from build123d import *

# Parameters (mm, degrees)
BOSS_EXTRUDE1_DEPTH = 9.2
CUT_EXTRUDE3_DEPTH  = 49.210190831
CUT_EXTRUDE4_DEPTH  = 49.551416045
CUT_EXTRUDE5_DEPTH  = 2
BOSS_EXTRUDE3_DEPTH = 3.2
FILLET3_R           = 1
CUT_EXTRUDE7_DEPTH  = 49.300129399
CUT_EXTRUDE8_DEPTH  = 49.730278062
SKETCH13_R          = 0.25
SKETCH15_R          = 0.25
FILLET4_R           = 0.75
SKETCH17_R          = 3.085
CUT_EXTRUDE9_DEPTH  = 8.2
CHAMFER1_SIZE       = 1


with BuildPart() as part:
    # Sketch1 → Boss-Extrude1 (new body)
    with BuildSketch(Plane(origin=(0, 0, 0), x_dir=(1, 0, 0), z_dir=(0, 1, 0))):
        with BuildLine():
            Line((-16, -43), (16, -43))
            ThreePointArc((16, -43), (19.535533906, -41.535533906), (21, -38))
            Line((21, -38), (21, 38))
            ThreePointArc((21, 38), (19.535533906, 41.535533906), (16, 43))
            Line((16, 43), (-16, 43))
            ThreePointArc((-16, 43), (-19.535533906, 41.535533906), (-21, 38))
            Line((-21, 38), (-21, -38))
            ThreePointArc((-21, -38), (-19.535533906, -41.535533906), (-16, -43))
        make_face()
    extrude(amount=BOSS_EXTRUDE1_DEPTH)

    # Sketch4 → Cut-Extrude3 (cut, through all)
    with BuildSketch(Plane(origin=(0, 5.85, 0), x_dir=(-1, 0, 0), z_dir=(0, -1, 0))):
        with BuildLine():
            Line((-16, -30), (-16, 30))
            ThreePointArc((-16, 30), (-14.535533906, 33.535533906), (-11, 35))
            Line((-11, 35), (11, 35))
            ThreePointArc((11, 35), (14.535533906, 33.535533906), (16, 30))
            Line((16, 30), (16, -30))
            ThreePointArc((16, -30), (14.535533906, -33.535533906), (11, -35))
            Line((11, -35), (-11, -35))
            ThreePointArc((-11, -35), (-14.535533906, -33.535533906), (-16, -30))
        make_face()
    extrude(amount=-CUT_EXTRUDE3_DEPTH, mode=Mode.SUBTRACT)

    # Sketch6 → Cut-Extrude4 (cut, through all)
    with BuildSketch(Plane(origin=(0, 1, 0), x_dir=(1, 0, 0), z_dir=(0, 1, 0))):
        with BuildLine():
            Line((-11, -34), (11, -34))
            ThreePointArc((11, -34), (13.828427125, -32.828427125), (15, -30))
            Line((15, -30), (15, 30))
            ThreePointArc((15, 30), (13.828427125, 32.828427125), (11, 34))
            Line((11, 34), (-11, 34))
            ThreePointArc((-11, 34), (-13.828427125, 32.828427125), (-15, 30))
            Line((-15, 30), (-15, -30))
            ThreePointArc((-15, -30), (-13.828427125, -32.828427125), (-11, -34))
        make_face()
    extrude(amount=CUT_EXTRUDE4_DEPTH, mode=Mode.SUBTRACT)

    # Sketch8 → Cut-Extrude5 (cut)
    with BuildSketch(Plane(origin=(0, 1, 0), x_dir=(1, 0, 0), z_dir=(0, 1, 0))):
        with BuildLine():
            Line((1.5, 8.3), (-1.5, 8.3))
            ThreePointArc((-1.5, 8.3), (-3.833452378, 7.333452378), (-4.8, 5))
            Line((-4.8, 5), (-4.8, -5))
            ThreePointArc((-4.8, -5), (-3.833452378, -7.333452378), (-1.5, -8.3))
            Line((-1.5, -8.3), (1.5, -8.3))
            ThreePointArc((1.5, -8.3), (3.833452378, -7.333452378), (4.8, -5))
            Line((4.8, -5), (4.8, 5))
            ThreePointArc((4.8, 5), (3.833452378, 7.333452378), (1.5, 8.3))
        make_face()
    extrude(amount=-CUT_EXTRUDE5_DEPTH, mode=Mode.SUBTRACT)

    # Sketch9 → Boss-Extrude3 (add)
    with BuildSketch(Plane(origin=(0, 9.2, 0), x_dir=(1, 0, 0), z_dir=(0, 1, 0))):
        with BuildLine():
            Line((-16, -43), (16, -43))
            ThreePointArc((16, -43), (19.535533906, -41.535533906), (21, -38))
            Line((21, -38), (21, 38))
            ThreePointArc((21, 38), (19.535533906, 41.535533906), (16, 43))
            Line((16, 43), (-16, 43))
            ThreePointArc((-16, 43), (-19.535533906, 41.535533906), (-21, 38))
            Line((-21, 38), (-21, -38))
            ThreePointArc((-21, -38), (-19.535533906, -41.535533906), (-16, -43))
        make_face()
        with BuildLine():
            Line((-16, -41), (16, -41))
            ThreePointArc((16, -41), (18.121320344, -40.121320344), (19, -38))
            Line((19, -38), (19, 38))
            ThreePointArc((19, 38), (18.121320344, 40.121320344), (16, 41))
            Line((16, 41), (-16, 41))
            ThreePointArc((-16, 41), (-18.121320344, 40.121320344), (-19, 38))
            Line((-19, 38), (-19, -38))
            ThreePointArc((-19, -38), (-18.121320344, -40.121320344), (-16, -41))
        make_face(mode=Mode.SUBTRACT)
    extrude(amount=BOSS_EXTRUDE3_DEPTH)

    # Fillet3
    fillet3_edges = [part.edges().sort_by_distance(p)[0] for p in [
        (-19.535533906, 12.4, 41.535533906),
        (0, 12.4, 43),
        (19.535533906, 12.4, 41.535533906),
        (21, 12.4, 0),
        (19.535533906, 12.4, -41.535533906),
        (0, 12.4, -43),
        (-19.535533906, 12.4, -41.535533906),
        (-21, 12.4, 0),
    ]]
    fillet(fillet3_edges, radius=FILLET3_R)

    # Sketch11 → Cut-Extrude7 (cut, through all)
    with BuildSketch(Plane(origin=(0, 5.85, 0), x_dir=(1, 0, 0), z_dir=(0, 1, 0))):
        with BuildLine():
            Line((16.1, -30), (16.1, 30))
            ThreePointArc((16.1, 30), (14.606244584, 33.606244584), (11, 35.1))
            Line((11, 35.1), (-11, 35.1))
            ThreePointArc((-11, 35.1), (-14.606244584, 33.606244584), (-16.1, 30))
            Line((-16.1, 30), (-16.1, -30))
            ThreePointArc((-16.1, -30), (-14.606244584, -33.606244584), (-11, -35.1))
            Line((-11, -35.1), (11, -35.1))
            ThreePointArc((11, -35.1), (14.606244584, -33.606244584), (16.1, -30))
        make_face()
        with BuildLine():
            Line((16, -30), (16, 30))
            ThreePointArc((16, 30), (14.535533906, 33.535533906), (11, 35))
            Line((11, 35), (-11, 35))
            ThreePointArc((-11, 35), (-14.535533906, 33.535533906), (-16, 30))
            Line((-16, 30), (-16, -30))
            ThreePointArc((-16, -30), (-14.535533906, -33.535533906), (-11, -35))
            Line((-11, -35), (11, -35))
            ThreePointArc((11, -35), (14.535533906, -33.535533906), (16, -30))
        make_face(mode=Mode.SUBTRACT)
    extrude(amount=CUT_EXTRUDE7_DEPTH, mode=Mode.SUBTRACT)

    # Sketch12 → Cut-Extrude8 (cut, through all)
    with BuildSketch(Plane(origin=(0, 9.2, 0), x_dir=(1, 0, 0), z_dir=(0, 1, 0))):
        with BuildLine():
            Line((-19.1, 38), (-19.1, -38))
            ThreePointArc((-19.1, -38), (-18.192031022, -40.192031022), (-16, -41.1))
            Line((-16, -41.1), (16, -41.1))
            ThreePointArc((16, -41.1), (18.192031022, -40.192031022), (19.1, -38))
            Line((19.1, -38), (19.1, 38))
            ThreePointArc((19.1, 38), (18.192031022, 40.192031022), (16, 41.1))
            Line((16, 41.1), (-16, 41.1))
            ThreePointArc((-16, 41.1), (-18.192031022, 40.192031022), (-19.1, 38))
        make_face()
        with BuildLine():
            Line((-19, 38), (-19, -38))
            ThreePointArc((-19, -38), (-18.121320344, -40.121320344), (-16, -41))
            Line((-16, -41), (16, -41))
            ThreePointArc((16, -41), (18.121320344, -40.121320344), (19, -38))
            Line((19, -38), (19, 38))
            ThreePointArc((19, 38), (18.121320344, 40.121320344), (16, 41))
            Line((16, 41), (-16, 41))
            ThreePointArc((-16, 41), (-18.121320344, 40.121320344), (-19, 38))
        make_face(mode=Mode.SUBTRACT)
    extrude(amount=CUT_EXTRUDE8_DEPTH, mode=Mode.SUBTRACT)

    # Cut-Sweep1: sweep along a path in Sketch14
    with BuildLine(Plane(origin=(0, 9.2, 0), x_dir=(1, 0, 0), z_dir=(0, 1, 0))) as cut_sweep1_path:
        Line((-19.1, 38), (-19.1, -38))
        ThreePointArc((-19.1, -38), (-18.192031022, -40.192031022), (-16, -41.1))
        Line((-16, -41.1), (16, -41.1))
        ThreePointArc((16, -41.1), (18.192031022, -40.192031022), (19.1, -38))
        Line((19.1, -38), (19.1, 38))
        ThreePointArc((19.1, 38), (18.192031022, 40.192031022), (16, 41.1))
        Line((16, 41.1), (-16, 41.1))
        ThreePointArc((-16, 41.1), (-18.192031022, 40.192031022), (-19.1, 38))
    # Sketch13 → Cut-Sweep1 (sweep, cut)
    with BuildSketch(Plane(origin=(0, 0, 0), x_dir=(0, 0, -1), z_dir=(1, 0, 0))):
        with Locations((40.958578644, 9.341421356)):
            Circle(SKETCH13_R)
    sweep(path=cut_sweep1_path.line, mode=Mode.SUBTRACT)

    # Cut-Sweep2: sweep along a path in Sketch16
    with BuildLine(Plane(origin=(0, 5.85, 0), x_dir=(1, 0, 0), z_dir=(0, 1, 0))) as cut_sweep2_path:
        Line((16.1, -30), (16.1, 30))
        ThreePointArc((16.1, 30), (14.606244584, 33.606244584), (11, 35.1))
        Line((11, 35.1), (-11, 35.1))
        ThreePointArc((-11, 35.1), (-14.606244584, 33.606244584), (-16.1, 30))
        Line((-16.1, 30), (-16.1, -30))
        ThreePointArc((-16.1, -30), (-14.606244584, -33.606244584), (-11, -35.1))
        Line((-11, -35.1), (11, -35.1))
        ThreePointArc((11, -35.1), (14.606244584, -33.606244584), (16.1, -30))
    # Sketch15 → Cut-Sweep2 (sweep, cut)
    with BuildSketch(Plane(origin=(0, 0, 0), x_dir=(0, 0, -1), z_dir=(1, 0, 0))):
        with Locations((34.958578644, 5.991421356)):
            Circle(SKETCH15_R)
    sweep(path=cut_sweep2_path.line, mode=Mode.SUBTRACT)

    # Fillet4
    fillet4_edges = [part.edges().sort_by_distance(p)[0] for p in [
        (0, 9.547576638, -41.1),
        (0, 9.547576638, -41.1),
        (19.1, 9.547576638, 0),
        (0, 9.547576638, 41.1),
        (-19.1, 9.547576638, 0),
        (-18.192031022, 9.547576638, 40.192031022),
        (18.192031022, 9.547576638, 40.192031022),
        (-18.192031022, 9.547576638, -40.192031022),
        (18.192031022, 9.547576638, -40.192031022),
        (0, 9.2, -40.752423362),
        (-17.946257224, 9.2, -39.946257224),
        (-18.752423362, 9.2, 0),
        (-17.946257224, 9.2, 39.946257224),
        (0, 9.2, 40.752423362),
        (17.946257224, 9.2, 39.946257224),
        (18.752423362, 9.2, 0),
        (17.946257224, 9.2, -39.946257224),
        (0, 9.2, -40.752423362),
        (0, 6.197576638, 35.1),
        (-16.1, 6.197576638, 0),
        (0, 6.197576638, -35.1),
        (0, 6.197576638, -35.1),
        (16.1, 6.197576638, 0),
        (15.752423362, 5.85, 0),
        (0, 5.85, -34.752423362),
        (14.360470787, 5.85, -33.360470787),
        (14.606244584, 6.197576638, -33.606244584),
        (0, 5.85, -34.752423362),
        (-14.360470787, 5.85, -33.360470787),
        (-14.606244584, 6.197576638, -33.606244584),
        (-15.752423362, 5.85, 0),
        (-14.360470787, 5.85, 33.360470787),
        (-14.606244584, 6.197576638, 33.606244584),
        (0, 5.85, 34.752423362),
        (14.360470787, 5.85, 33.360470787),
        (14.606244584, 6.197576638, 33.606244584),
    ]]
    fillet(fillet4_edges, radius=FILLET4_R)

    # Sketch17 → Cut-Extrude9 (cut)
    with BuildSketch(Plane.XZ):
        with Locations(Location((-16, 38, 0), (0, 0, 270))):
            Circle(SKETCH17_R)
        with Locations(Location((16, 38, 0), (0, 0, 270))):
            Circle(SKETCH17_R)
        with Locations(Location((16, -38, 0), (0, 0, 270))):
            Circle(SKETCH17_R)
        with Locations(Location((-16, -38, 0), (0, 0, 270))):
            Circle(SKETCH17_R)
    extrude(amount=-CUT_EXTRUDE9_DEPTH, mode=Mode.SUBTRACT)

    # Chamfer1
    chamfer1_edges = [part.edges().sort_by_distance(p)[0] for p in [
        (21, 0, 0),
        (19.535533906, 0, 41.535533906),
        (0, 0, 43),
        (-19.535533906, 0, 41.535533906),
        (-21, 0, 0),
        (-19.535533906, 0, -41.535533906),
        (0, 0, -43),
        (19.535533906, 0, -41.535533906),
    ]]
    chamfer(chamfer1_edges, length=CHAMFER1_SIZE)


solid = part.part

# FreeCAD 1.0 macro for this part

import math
import FreeCAD as App
import Part
import Sketcher
Q = App.Units.Quantity


def edges_at(feature, points):
    """Names of the edges that pass closest to the given points."""
    edges = feature.Shape.Edges
    near = lambda p: min(range(len(edges)), key=lambda i: edges[i].distToShape(Part.Vertex(*p))[0])
    return sorted({f"Edge{near(p) + 1}" for p in points})

doc = App.newDocument("Part")
body = doc.addObject("PartDesign::Body", "Body")

# Sketch on XZ plane
sketch1 = doc.addObject("Sketcher::SketchObject", "Sketch")
body.addObject(sketch1)
sketch1.AttachmentSupport = (doc.XZ_Plane, [""])
sketch1.MapMode = "FlatFace"
sketch1.addGeometry([
    Part.LineSegment(App.Vector(-16, 43, 0), App.Vector(16, 43, 0)),  # 0
    Part.ArcOfCircle(Part.Circle(App.Vector(16, 38, 0), App.Vector(0, 0, 1), 5), math.radians(0), math.radians(90)),  # 1
    Part.LineSegment(App.Vector(21, 38, 0), App.Vector(21, -38, 0)),  # 2
    Part.ArcOfCircle(Part.Circle(App.Vector(16, -38, 0), App.Vector(0, 0, 1), 5), math.radians(-90), math.radians(0)),  # 3
    Part.LineSegment(App.Vector(16, -43, 0), App.Vector(-16, -43, 0)),  # 4
    Part.ArcOfCircle(Part.Circle(App.Vector(-16, -38, 0), App.Vector(0, 0, 1), 5), math.radians(180), math.radians(270)),  # 5
    Part.LineSegment(App.Vector(-21, -38, 0), App.Vector(-21, 38, 0)),  # 6
    Part.ArcOfCircle(Part.Circle(App.Vector(-16, 38, 0), App.Vector(0, 0, 1), 5), math.radians(90), math.radians(180)),  # 7
], False)
sketch1.addConstraint([
    Sketcher.Constraint("Tangent", 0, 2, 1, 2),
    Sketcher.Constraint("Tangent", 1, 1, 2, 1),
    Sketcher.Constraint("Tangent", 2, 2, 3, 2),
    Sketcher.Constraint("Tangent", 3, 1, 4, 1),
    Sketcher.Constraint("Tangent", 4, 2, 5, 2),
    Sketcher.Constraint("Tangent", 5, 1, 6, 1),
    Sketcher.Constraint("Tangent", 6, 2, 7, 2),
    Sketcher.Constraint("Tangent", 7, 1, 0, 1),
    Sketcher.Constraint("Horizontal", 0),
    Sketcher.Constraint("Vertical", 2),
    Sketcher.Constraint("Horizontal", 4),
    Sketcher.Constraint("Vertical", 6),
    Sketcher.Constraint("Equal", 1, 3),
    Sketcher.Constraint("Equal", 3, 5),
    Sketcher.Constraint("Equal", 5, 7),
    Sketcher.Constraint("Symmetric", 1, 3, 5, 3, -1, 1),
    Sketcher.Constraint("Radius", 1, Q("5 mm")),
    Sketcher.Constraint("DistanceX", 0, 1, 0, 2, Q("32 mm")),
    Sketcher.Constraint("DistanceY", 2, 2, 2, 1, Q("76 mm")),
])
pad1 = doc.addObject("PartDesign::Pad", "Pad")
body.addObject(pad1)
pad1.Profile = sketch1
pad1.Length = 9.2
pad1.Reversed = True

# Sketch on XZ plane
sketch2 = doc.addObject("Sketcher::SketchObject", "Sketch001")
body.addObject(sketch2)
sketch2.AttachmentSupport = (doc.XZ_Plane, [""])
sketch2.MapMode = "FlatFace"
sketch2.AttachmentOffset = App.Placement(App.Vector(0, 0, -5.85), App.Rotation())
sketch2.addGeometry([
    Part.LineSegment(App.Vector(16, -30, 0), App.Vector(16, 30, 0)),  # 0
    Part.ArcOfCircle(Part.Circle(App.Vector(11, 30, 0), App.Vector(0, 0, 1), 5), math.radians(0), math.radians(90)),  # 1
    Part.LineSegment(App.Vector(11, 35, 0), App.Vector(-11, 35, 0)),  # 2
    Part.ArcOfCircle(Part.Circle(App.Vector(-11, 30, 0), App.Vector(0, 0, 1), 5), math.radians(90), math.radians(180)),  # 3
    Part.LineSegment(App.Vector(-16, 30, 0), App.Vector(-16, -30, 0)),  # 4
    Part.ArcOfCircle(Part.Circle(App.Vector(-11, -30, 0), App.Vector(0, 0, 1), 5), math.radians(180), math.radians(270)),  # 5
    Part.LineSegment(App.Vector(-11, -35, 0), App.Vector(11, -35, 0)),  # 6
    Part.ArcOfCircle(Part.Circle(App.Vector(11, -30, 0), App.Vector(0, 0, 1), 5), math.radians(-90), math.radians(0)),  # 7
], False)
sketch2.addConstraint([
    Sketcher.Constraint("Tangent", 0, 2, 1, 1),
    Sketcher.Constraint("Tangent", 1, 2, 2, 1),
    Sketcher.Constraint("Tangent", 2, 2, 3, 1),
    Sketcher.Constraint("Tangent", 3, 2, 4, 1),
    Sketcher.Constraint("Tangent", 4, 2, 5, 1),
    Sketcher.Constraint("Tangent", 5, 2, 6, 1),
    Sketcher.Constraint("Tangent", 6, 2, 7, 1),
    Sketcher.Constraint("Tangent", 7, 2, 0, 1),
    Sketcher.Constraint("Vertical", 0),
    Sketcher.Constraint("Horizontal", 2),
    Sketcher.Constraint("Vertical", 4),
    Sketcher.Constraint("Horizontal", 6),
    Sketcher.Constraint("Equal", 1, 3),
    Sketcher.Constraint("Equal", 3, 5),
    Sketcher.Constraint("Equal", 5, 7),
    Sketcher.Constraint("Symmetric", 1, 3, 5, 3, -1, 1),
    Sketcher.Constraint("Radius", 1, Q("5 mm")),
    Sketcher.Constraint("DistanceX", 2, 2, 2, 1, Q("22 mm")),
    Sketcher.Constraint("DistanceY", 0, 1, 0, 2, Q("60 mm")),
])
pocket1 = doc.addObject("PartDesign::Pocket", "Pocket")
body.addObject(pocket1)
pocket1.Profile = sketch2
pocket1.Type = "ThroughAll"

# Sketch on XZ plane
sketch3 = doc.addObject("Sketcher::SketchObject", "Sketch002")
body.addObject(sketch3)
sketch3.AttachmentSupport = (doc.XZ_Plane, [""])
sketch3.MapMode = "FlatFace"
sketch3.AttachmentOffset = App.Placement(App.Vector(0, 0, -1), App.Rotation())
sketch3.addGeometry([
    Part.LineSegment(App.Vector(-11, 34, 0), App.Vector(11, 34, 0)),  # 0
    Part.ArcOfCircle(Part.Circle(App.Vector(11, 30, 0), App.Vector(0, 0, 1), 4), math.radians(0), math.radians(90)),  # 1
    Part.LineSegment(App.Vector(15, 30, 0), App.Vector(15, -30, 0)),  # 2
    Part.ArcOfCircle(Part.Circle(App.Vector(11, -30, 0), App.Vector(0, 0, 1), 4), math.radians(-90), math.radians(0)),  # 3
    Part.LineSegment(App.Vector(11, -34, 0), App.Vector(-11, -34, 0)),  # 4
    Part.ArcOfCircle(Part.Circle(App.Vector(-11, -30, 0), App.Vector(0, 0, 1), 4), math.radians(180), math.radians(270)),  # 5
    Part.LineSegment(App.Vector(-15, -30, 0), App.Vector(-15, 30, 0)),  # 6
    Part.ArcOfCircle(Part.Circle(App.Vector(-11, 30, 0), App.Vector(0, 0, 1), 4), math.radians(90), math.radians(180)),  # 7
], False)
sketch3.addConstraint([
    Sketcher.Constraint("Tangent", 0, 2, 1, 2),
    Sketcher.Constraint("Tangent", 1, 1, 2, 1),
    Sketcher.Constraint("Tangent", 2, 2, 3, 2),
    Sketcher.Constraint("Tangent", 3, 1, 4, 1),
    Sketcher.Constraint("Tangent", 4, 2, 5, 2),
    Sketcher.Constraint("Tangent", 5, 1, 6, 1),
    Sketcher.Constraint("Tangent", 6, 2, 7, 2),
    Sketcher.Constraint("Tangent", 7, 1, 0, 1),
    Sketcher.Constraint("Horizontal", 0),
    Sketcher.Constraint("Vertical", 2),
    Sketcher.Constraint("Horizontal", 4),
    Sketcher.Constraint("Vertical", 6),
    Sketcher.Constraint("Equal", 1, 3),
    Sketcher.Constraint("Equal", 3, 5),
    Sketcher.Constraint("Equal", 5, 7),
    Sketcher.Constraint("Symmetric", 1, 3, 5, 3, -1, 1),
    Sketcher.Constraint("Radius", 1, Q("4 mm")),
    Sketcher.Constraint("DistanceX", 0, 1, 0, 2, Q("22 mm")),
    Sketcher.Constraint("DistanceY", 2, 2, 2, 1, Q("60 mm")),
])
pocket2 = doc.addObject("PartDesign::Pocket", "Pocket001")
body.addObject(pocket2)
pocket2.Profile = sketch3
pocket2.Type = "ThroughAll"

# Sketch on XZ plane
sketch4 = doc.addObject("Sketcher::SketchObject", "Sketch003")
body.addObject(sketch4)
sketch4.AttachmentSupport = (doc.XZ_Plane, [""])
sketch4.MapMode = "FlatFace"
sketch4.AttachmentOffset = App.Placement(App.Vector(0, 0, -1), App.Rotation())
sketch4.addGeometry([
    Part.LineSegment(App.Vector(1.5, -8.3, 0), App.Vector(-1.5, -8.3, 0)),  # 0
    Part.ArcOfCircle(Part.Circle(App.Vector(-1.5, -5, 0), App.Vector(0, 0, 1), 3.3), math.radians(180), math.radians(270)),  # 1
    Part.LineSegment(App.Vector(-4.8, -5, 0), App.Vector(-4.8, 5, 0)),  # 2
    Part.ArcOfCircle(Part.Circle(App.Vector(-1.5, 5, 0), App.Vector(0, 0, 1), 3.3), math.radians(90), math.radians(180)),  # 3
    Part.LineSegment(App.Vector(-1.5, 8.3, 0), App.Vector(1.5, 8.3, 0)),  # 4
    Part.ArcOfCircle(Part.Circle(App.Vector(1.5, 5, 0), App.Vector(0, 0, 1), 3.3), math.radians(0), math.radians(90)),  # 5
    Part.LineSegment(App.Vector(4.8, 5, 0), App.Vector(4.8, -5, 0)),  # 6
    Part.ArcOfCircle(Part.Circle(App.Vector(1.5, -5, 0), App.Vector(0, 0, 1), 3.3), math.radians(-90), math.radians(0)),  # 7
], False)
sketch4.addConstraint([
    Sketcher.Constraint("Tangent", 0, 2, 1, 2),
    Sketcher.Constraint("Tangent", 1, 1, 2, 1),
    Sketcher.Constraint("Tangent", 2, 2, 3, 2),
    Sketcher.Constraint("Tangent", 3, 1, 4, 1),
    Sketcher.Constraint("Tangent", 4, 2, 5, 2),
    Sketcher.Constraint("Tangent", 5, 1, 6, 1),
    Sketcher.Constraint("Tangent", 6, 2, 7, 2),
    Sketcher.Constraint("Tangent", 7, 1, 0, 1),
    Sketcher.Constraint("Horizontal", 0),
    Sketcher.Constraint("Vertical", 2),
    Sketcher.Constraint("Horizontal", 4),
    Sketcher.Constraint("Vertical", 6),
    Sketcher.Constraint("Equal", 1, 3),
    Sketcher.Constraint("Equal", 3, 5),
    Sketcher.Constraint("Equal", 5, 7),
    Sketcher.Constraint("Symmetric", 1, 3, 5, 3, -1, 1),
    Sketcher.Constraint("Radius", 1, Q("3.3 mm")),
    Sketcher.Constraint("DistanceX", 0, 2, 0, 1, Q("3 mm")),
    Sketcher.Constraint("DistanceY", 2, 1, 2, 2, Q("10 mm")),
])
pocket3 = doc.addObject("PartDesign::Pocket", "Pocket002")
body.addObject(pocket3)
pocket3.Profile = sketch4
pocket3.Length = 2
pocket3.Reversed = True

# Sketch on XZ plane
sketch5 = doc.addObject("Sketcher::SketchObject", "Sketch004")
body.addObject(sketch5)
sketch5.AttachmentSupport = (doc.XZ_Plane, [""])
sketch5.MapMode = "FlatFace"
sketch5.AttachmentOffset = App.Placement(App.Vector(0, 0, -9.2), App.Rotation())
sketch5.addGeometry([
    Part.LineSegment(App.Vector(-16, 43, 0), App.Vector(16, 43, 0)),  # 0
    Part.ArcOfCircle(Part.Circle(App.Vector(16, 38, 0), App.Vector(0, 0, 1), 5), math.radians(0), math.radians(90)),  # 1
    Part.LineSegment(App.Vector(21, 38, 0), App.Vector(21, -38, 0)),  # 2
    Part.ArcOfCircle(Part.Circle(App.Vector(16, -38, 0), App.Vector(0, 0, 1), 5), math.radians(-90), math.radians(0)),  # 3
    Part.LineSegment(App.Vector(16, -43, 0), App.Vector(-16, -43, 0)),  # 4
    Part.ArcOfCircle(Part.Circle(App.Vector(-16, -38, 0), App.Vector(0, 0, 1), 5), math.radians(180), math.radians(270)),  # 5
    Part.LineSegment(App.Vector(-21, -38, 0), App.Vector(-21, 38, 0)),  # 6
    Part.ArcOfCircle(Part.Circle(App.Vector(-16, 38, 0), App.Vector(0, 0, 1), 5), math.radians(90), math.radians(180)),  # 7
    Part.LineSegment(App.Vector(16, 41, 0), App.Vector(-16, 41, 0)),  # 8
    Part.ArcOfCircle(Part.Circle(App.Vector(-16, 38, 0), App.Vector(0, 0, 1), 3), math.radians(90), math.radians(180)),  # 9
    Part.LineSegment(App.Vector(-19, 38, 0), App.Vector(-19, -38, 0)),  # 10
    Part.ArcOfCircle(Part.Circle(App.Vector(-16, -38, 0), App.Vector(0, 0, 1), 3), math.radians(180), math.radians(270)),  # 11
    Part.LineSegment(App.Vector(-16, -41, 0), App.Vector(16, -41, 0)),  # 12
    Part.ArcOfCircle(Part.Circle(App.Vector(16, -38, 0), App.Vector(0, 0, 1), 3), math.radians(-90), math.radians(0)),  # 13
    Part.LineSegment(App.Vector(19, -38, 0), App.Vector(19, 38, 0)),  # 14
    Part.ArcOfCircle(Part.Circle(App.Vector(16, 38, 0), App.Vector(0, 0, 1), 3), math.radians(0), math.radians(90)),  # 15
], False)
sketch5.addConstraint([
    Sketcher.Constraint("Tangent", 0, 2, 1, 2),
    Sketcher.Constraint("Tangent", 1, 1, 2, 1),
    Sketcher.Constraint("Tangent", 2, 2, 3, 2),
    Sketcher.Constraint("Tangent", 3, 1, 4, 1),
    Sketcher.Constraint("Tangent", 4, 2, 5, 2),
    Sketcher.Constraint("Tangent", 5, 1, 6, 1),
    Sketcher.Constraint("Tangent", 6, 2, 7, 2),
    Sketcher.Constraint("Tangent", 7, 1, 0, 1),
    Sketcher.Constraint("Tangent", 8, 2, 9, 1),
    Sketcher.Constraint("Tangent", 9, 2, 10, 1),
    Sketcher.Constraint("Tangent", 10, 2, 11, 1),
    Sketcher.Constraint("Tangent", 11, 2, 12, 1),
    Sketcher.Constraint("Tangent", 12, 2, 13, 1),
    Sketcher.Constraint("Tangent", 13, 2, 14, 1),
    Sketcher.Constraint("Tangent", 14, 2, 15, 1),
    Sketcher.Constraint("Tangent", 15, 2, 8, 1),
    Sketcher.Constraint("Horizontal", 0),
    Sketcher.Constraint("Vertical", 2),
    Sketcher.Constraint("Horizontal", 4),
    Sketcher.Constraint("Vertical", 6),
    Sketcher.Constraint("Horizontal", 8),
    Sketcher.Constraint("Vertical", 10),
    Sketcher.Constraint("Horizontal", 12),
    Sketcher.Constraint("Vertical", 14),
    Sketcher.Constraint("Coincident", 9, 3, 7, 3),
    Sketcher.Constraint("Coincident", 11, 3, 5, 3),
    Sketcher.Constraint("Coincident", 13, 3, 3, 3),
    Sketcher.Constraint("Equal", 1, 3),
    Sketcher.Constraint("Equal", 3, 5),
    Sketcher.Constraint("Equal", 5, 7),
    Sketcher.Constraint("Equal", 13, 15),
    Sketcher.Constraint("Symmetric", 1, 3, 5, 3, -1, 1),
    Sketcher.Constraint("Radius", 1, Q("5 mm")),
    Sketcher.Constraint("Radius", 9, Q("3 mm")),
    Sketcher.Constraint("DistanceX", 0, 1, 0, 2, Q("32 mm")),
    Sketcher.Constraint("DistanceY", 2, 2, 2, 1, Q("76 mm")),
])
pad2 = doc.addObject("PartDesign::Pad", "Pad001")
body.addObject(pad2)
pad2.Profile = sketch5
pad2.Length = 3.2
pad2.Reversed = True
doc.recompute()

fillet = doc.addObject("PartDesign::Fillet", "Fillet")
body.addObject(fillet)
fillet.Base = (pad2, edges_at(pad2, [
    (-19.536, 12.4, 41.536),
    (0, 12.4, 43),
    (19.536, 12.4, 41.536),
    (21, 12.4, 0),
    (19.536, 12.4, -41.536),
    (0, 12.4, -43),
    (-19.536, 12.4, -41.536),
    (-21, 12.4, 0),
]))
fillet.Radius = 1

# Sketch on XZ plane
sketch6 = doc.addObject("Sketcher::SketchObject", "Sketch005")
body.addObject(sketch6)
sketch6.AttachmentSupport = (doc.XZ_Plane, [""])
sketch6.MapMode = "FlatFace"
sketch6.AttachmentOffset = App.Placement(App.Vector(0, 0, -5.85), App.Rotation())
sketch6.addGeometry([
    Part.LineSegment(App.Vector(16.1, 30, 0), App.Vector(16.1, -30, 0)),  # 0
    Part.ArcOfCircle(Part.Circle(App.Vector(11, -30, 0), App.Vector(0, 0, 1), 5.1), math.radians(-90), math.radians(0)),  # 1
    Part.LineSegment(App.Vector(11, -35.1, 0), App.Vector(-11, -35.1, 0)),  # 2
    Part.ArcOfCircle(Part.Circle(App.Vector(-11, -30, 0), App.Vector(0, 0, 1), 5.1), math.radians(180), math.radians(270)),  # 3
    Part.LineSegment(App.Vector(-16.1, -30, 0), App.Vector(-16.1, 30, 0)),  # 4
    Part.ArcOfCircle(Part.Circle(App.Vector(-11, 30, 0), App.Vector(0, 0, 1), 5.1), math.radians(90), math.radians(180)),  # 5
    Part.LineSegment(App.Vector(-11, 35.1, 0), App.Vector(11, 35.1, 0)),  # 6
    Part.ArcOfCircle(Part.Circle(App.Vector(11, 30, 0), App.Vector(0, 0, 1), 5.1), math.radians(0), math.radians(90)),  # 7
    Part.LineSegment(App.Vector(16, -30, 0), App.Vector(16, 30, 0)),  # 8
    Part.ArcOfCircle(Part.Circle(App.Vector(11, 30, 0), App.Vector(0, 0, 1), 5), math.radians(0), math.radians(90)),  # 9
    Part.LineSegment(App.Vector(11, 35, 0), App.Vector(-11, 35, 0)),  # 10
    Part.ArcOfCircle(Part.Circle(App.Vector(-11, 30, 0), App.Vector(0, 0, 1), 5), math.radians(90), math.radians(180)),  # 11
    Part.LineSegment(App.Vector(-16, 30, 0), App.Vector(-16, -30, 0)),  # 12
    Part.ArcOfCircle(Part.Circle(App.Vector(-11, -30, 0), App.Vector(0, 0, 1), 5), math.radians(180), math.radians(270)),  # 13
    Part.LineSegment(App.Vector(-11, -35, 0), App.Vector(11, -35, 0)),  # 14
    Part.ArcOfCircle(Part.Circle(App.Vector(11, -30, 0), App.Vector(0, 0, 1), 5), math.radians(-90), math.radians(0)),  # 15
], False)
sketch6.addConstraint([
    Sketcher.Constraint("Tangent", 0, 2, 1, 2),
    Sketcher.Constraint("Tangent", 1, 1, 2, 1),
    Sketcher.Constraint("Tangent", 2, 2, 3, 2),
    Sketcher.Constraint("Tangent", 3, 1, 4, 1),
    Sketcher.Constraint("Tangent", 4, 2, 5, 2),
    Sketcher.Constraint("Tangent", 5, 1, 6, 1),
    Sketcher.Constraint("Tangent", 6, 2, 7, 2),
    Sketcher.Constraint("Tangent", 7, 1, 0, 1),
    Sketcher.Constraint("Tangent", 8, 2, 9, 1),
    Sketcher.Constraint("Tangent", 9, 2, 10, 1),
    Sketcher.Constraint("Tangent", 10, 2, 11, 1),
    Sketcher.Constraint("Tangent", 11, 2, 12, 1),
    Sketcher.Constraint("Tangent", 12, 2, 13, 1),
    Sketcher.Constraint("Tangent", 13, 2, 14, 1),
    Sketcher.Constraint("Tangent", 14, 2, 15, 1),
    Sketcher.Constraint("Tangent", 15, 2, 8, 1),
    Sketcher.Constraint("Vertical", 0),
    Sketcher.Constraint("Horizontal", 2),
    Sketcher.Constraint("Vertical", 4),
    Sketcher.Constraint("Horizontal", 6),
    Sketcher.Constraint("Vertical", 8),
    Sketcher.Constraint("Horizontal", 10),
    Sketcher.Constraint("Vertical", 12),
    Sketcher.Constraint("Horizontal", 14),
    Sketcher.Constraint("Coincident", 9, 3, 7, 3),
    Sketcher.Constraint("Coincident", 11, 3, 5, 3),
    Sketcher.Constraint("Coincident", 13, 3, 3, 3),
    Sketcher.Constraint("Equal", 1, 3),
    Sketcher.Constraint("Equal", 3, 5),
    Sketcher.Constraint("Equal", 5, 7),
    Sketcher.Constraint("Equal", 13, 15),
    Sketcher.Constraint("Symmetric", 1, 3, 5, 3, -1, 1),
    Sketcher.Constraint("Radius", 9, Q("5 mm")),
    Sketcher.Constraint("Radius", 1, Q("5.1 mm")),
    Sketcher.Constraint("DistanceX", 2, 2, 2, 1, Q("22 mm")),
    Sketcher.Constraint("DistanceY", 0, 2, 0, 1, Q("60 mm")),
])
pocket4 = doc.addObject("PartDesign::Pocket", "Pocket003")
body.addObject(pocket4)
pocket4.Profile = sketch6
pocket4.Type = "ThroughAll"

# Sketch on XZ plane
sketch7 = doc.addObject("Sketcher::SketchObject", "Sketch006")
body.addObject(sketch7)
sketch7.AttachmentSupport = (doc.XZ_Plane, [""])
sketch7.MapMode = "FlatFace"
sketch7.AttachmentOffset = App.Placement(App.Vector(0, 0, -9.2), App.Rotation())
sketch7.addGeometry([
    Part.LineSegment(App.Vector(-19.1, -38, 0), App.Vector(-19.1, 38, 0)),  # 0
    Part.ArcOfCircle(Part.Circle(App.Vector(-16, 38, 0), App.Vector(0, 0, 1), 3.1), math.radians(90), math.radians(180)),  # 1
    Part.LineSegment(App.Vector(-16, 41.1, 0), App.Vector(16, 41.1, 0)),  # 2
    Part.ArcOfCircle(Part.Circle(App.Vector(16, 38, 0), App.Vector(0, 0, 1), 3.1), math.radians(0), math.radians(90)),  # 3
    Part.LineSegment(App.Vector(19.1, 38, 0), App.Vector(19.1, -38, 0)),  # 4
    Part.ArcOfCircle(Part.Circle(App.Vector(16, -38, 0), App.Vector(0, 0, 1), 3.1), math.radians(-90), math.radians(0)),  # 5
    Part.LineSegment(App.Vector(16, -41.1, 0), App.Vector(-16, -41.1, 0)),  # 6
    Part.ArcOfCircle(Part.Circle(App.Vector(-16, -38, 0), App.Vector(0, 0, 1), 3.1), math.radians(180), math.radians(270)),  # 7
    Part.LineSegment(App.Vector(-19, 38, 0), App.Vector(-19, -38, 0)),  # 8
    Part.ArcOfCircle(Part.Circle(App.Vector(-16, -38, 0), App.Vector(0, 0, 1), 3), math.radians(180), math.radians(270)),  # 9
    Part.LineSegment(App.Vector(-16, -41, 0), App.Vector(16, -41, 0)),  # 10
    Part.ArcOfCircle(Part.Circle(App.Vector(16, -38, 0), App.Vector(0, 0, 1), 3), math.radians(-90), math.radians(0)),  # 11
    Part.LineSegment(App.Vector(19, -38, 0), App.Vector(19, 38, 0)),  # 12
    Part.ArcOfCircle(Part.Circle(App.Vector(16, 38, 0), App.Vector(0, 0, 1), 3), math.radians(0), math.radians(90)),  # 13
    Part.LineSegment(App.Vector(16, 41, 0), App.Vector(-16, 41, 0)),  # 14
    Part.ArcOfCircle(Part.Circle(App.Vector(-16, 38, 0), App.Vector(0, 0, 1), 3), math.radians(90), math.radians(180)),  # 15
], False)
sketch7.addConstraint([
    Sketcher.Constraint("Tangent", 0, 2, 1, 2),
    Sketcher.Constraint("Tangent", 1, 1, 2, 1),
    Sketcher.Constraint("Tangent", 2, 2, 3, 2),
    Sketcher.Constraint("Tangent", 3, 1, 4, 1),
    Sketcher.Constraint("Tangent", 4, 2, 5, 2),
    Sketcher.Constraint("Tangent", 5, 1, 6, 1),
    Sketcher.Constraint("Tangent", 6, 2, 7, 2),
    Sketcher.Constraint("Tangent", 7, 1, 0, 1),
    Sketcher.Constraint("Tangent", 8, 2, 9, 1),
    Sketcher.Constraint("Tangent", 9, 2, 10, 1),
    Sketcher.Constraint("Tangent", 10, 2, 11, 1),
    Sketcher.Constraint("Tangent", 11, 2, 12, 1),
    Sketcher.Constraint("Tangent", 12, 2, 13, 1),
    Sketcher.Constraint("Tangent", 13, 2, 14, 1),
    Sketcher.Constraint("Tangent", 14, 2, 15, 1),
    Sketcher.Constraint("Tangent", 15, 2, 8, 1),
    Sketcher.Constraint("Vertical", 0),
    Sketcher.Constraint("Horizontal", 2),
    Sketcher.Constraint("Vertical", 4),
    Sketcher.Constraint("Horizontal", 6),
    Sketcher.Constraint("Vertical", 8),
    Sketcher.Constraint("Horizontal", 10),
    Sketcher.Constraint("Vertical", 12),
    Sketcher.Constraint("Horizontal", 14),
    Sketcher.Constraint("Coincident", 9, 3, 7, 3),
    Sketcher.Constraint("Coincident", 11, 3, 5, 3),
    Sketcher.Constraint("Coincident", 13, 3, 3, 3),
    Sketcher.Constraint("Equal", 1, 3),
    Sketcher.Constraint("Equal", 3, 5),
    Sketcher.Constraint("Equal", 5, 7),
    Sketcher.Constraint("Equal", 13, 15),
    Sketcher.Constraint("Symmetric", 1, 3, 5, 3, -1, 1),
    Sketcher.Constraint("Radius", 9, Q("3 mm")),
    Sketcher.Constraint("Radius", 1, Q("3.1 mm")),
    Sketcher.Constraint("DistanceX", 2, 1, 2, 2, Q("32 mm")),
    Sketcher.Constraint("DistanceY", 0, 1, 0, 2, Q("76 mm")),
])
pocket5 = doc.addObject("PartDesign::Pocket", "Pocket004")
body.addObject(pocket5)
pocket5.Profile = sketch7
pocket5.Type = "ThroughAll"

# Sketch on YZ plane
sketch8 = doc.addObject("Sketcher::SketchObject", "Sketch007")
body.addObject(sketch8)
sketch8.AttachmentSupport = (doc.YZ_Plane, [""])
sketch8.MapMode = "FlatFace"
sketch8.addGeometry(Part.Circle(App.Vector(9.341421, -40.958579, 0), App.Vector(0, 0, 1), 0.25), False)
sketch8.addConstraint([
    Sketcher.Constraint("Diameter", 0, Q("0.5 mm")),
    Sketcher.Constraint("DistanceX", -1, 1, 0, 3, Q("9.341421 mm")),
    Sketcher.Constraint("DistanceY", 0, 3, -1, 1, Q("40.958579 mm")),
])

# Sketch on XZ plane
sketch9 = doc.addObject("Sketcher::SketchObject", "Sketch008")
body.addObject(sketch9)
sketch9.AttachmentSupport = (doc.XZ_Plane, [""])
sketch9.MapMode = "FlatFace"
sketch9.AttachmentOffset = App.Placement(App.Vector(0, 0, -9.2), App.Rotation())
sketch9.addGeometry([
    Part.LineSegment(App.Vector(-19.1, -38, 0), App.Vector(-19.1, 38, 0)),  # 0
    Part.ArcOfCircle(Part.Circle(App.Vector(-16, 38, 0), App.Vector(0, 0, 1), 3.1), math.radians(90), math.radians(180)),  # 1
    Part.LineSegment(App.Vector(-16, 41.1, 0), App.Vector(16, 41.1, 0)),  # 2
    Part.ArcOfCircle(Part.Circle(App.Vector(16, 38, 0), App.Vector(0, 0, 1), 3.1), math.radians(0), math.radians(90)),  # 3
    Part.LineSegment(App.Vector(19.1, 38, 0), App.Vector(19.1, -38, 0)),  # 4
    Part.ArcOfCircle(Part.Circle(App.Vector(16, -38, 0), App.Vector(0, 0, 1), 3.1), math.radians(-90), math.radians(0)),  # 5
    Part.LineSegment(App.Vector(16, -41.1, 0), App.Vector(-16, -41.1, 0)),  # 6
    Part.ArcOfCircle(Part.Circle(App.Vector(-16, -38, 0), App.Vector(0, 0, 1), 3.1), math.radians(180), math.radians(270)),  # 7
], False)
sketch9.addConstraint([
    Sketcher.Constraint("Tangent", 0, 2, 1, 2),
    Sketcher.Constraint("Tangent", 1, 1, 2, 1),
    Sketcher.Constraint("Tangent", 2, 2, 3, 2),
    Sketcher.Constraint("Tangent", 3, 1, 4, 1),
    Sketcher.Constraint("Tangent", 4, 2, 5, 2),
    Sketcher.Constraint("Tangent", 5, 1, 6, 1),
    Sketcher.Constraint("Tangent", 6, 2, 7, 2),
    Sketcher.Constraint("Tangent", 7, 1, 0, 1),
    Sketcher.Constraint("Vertical", 0),
    Sketcher.Constraint("Horizontal", 2),
    Sketcher.Constraint("Vertical", 4),
    Sketcher.Constraint("Horizontal", 6),
    Sketcher.Constraint("Equal", 1, 3),
    Sketcher.Constraint("Equal", 3, 5),
    Sketcher.Constraint("Equal", 5, 7),
    Sketcher.Constraint("Symmetric", 1, 3, 5, 3, -1, 1),
    Sketcher.Constraint("Radius", 1, Q("3.1 mm")),
    Sketcher.Constraint("DistanceX", 2, 1, 2, 2, Q("32 mm")),
    Sketcher.Constraint("DistanceY", 0, 1, 0, 2, Q("76 mm")),
])
doc.recompute()

subtractivepipe = doc.addObject("PartDesign::SubtractivePipe", "SubtractivePipe")
body.addObject(subtractivepipe)
subtractivepipe.Profile = sketch8
subtractivepipe.Spine = (sketch9, ["Edge1", "Edge2", "Edge3", "Edge4", "Edge5", "Edge6", "Edge7", "Edge8"])

# Sketch on YZ plane
sketch10 = doc.addObject("Sketcher::SketchObject", "Sketch009")
body.addObject(sketch10)
sketch10.AttachmentSupport = (doc.YZ_Plane, [""])
sketch10.MapMode = "FlatFace"
sketch10.addGeometry(Part.Circle(App.Vector(5.991421, -34.958579, 0), App.Vector(0, 0, 1), 0.25), False)
sketch10.addConstraint([
    Sketcher.Constraint("Diameter", 0, Q("0.5 mm")),
    Sketcher.Constraint("DistanceX", -1, 1, 0, 3, Q("5.991421 mm")),
    Sketcher.Constraint("DistanceY", 0, 3, -1, 1, Q("34.958579 mm")),
])

# Sketch on XZ plane
sketch11 = doc.addObject("Sketcher::SketchObject", "Sketch010")
body.addObject(sketch11)
sketch11.AttachmentSupport = (doc.XZ_Plane, [""])
sketch11.MapMode = "FlatFace"
sketch11.AttachmentOffset = App.Placement(App.Vector(0, 0, -5.85), App.Rotation())
sketch11.addGeometry([
    Part.LineSegment(App.Vector(16.1, 30, 0), App.Vector(16.1, -30, 0)),  # 0
    Part.ArcOfCircle(Part.Circle(App.Vector(11, -30, 0), App.Vector(0, 0, 1), 5.1), math.radians(-90), math.radians(0)),  # 1
    Part.LineSegment(App.Vector(11, -35.1, 0), App.Vector(-11, -35.1, 0)),  # 2
    Part.ArcOfCircle(Part.Circle(App.Vector(-11, -30, 0), App.Vector(0, 0, 1), 5.1), math.radians(180), math.radians(270)),  # 3
    Part.LineSegment(App.Vector(-16.1, -30, 0), App.Vector(-16.1, 30, 0)),  # 4
    Part.ArcOfCircle(Part.Circle(App.Vector(-11, 30, 0), App.Vector(0, 0, 1), 5.1), math.radians(90), math.radians(180)),  # 5
    Part.LineSegment(App.Vector(-11, 35.1, 0), App.Vector(11, 35.1, 0)),  # 6
    Part.ArcOfCircle(Part.Circle(App.Vector(11, 30, 0), App.Vector(0, 0, 1), 5.1), math.radians(0), math.radians(90)),  # 7
], False)
sketch11.addConstraint([
    Sketcher.Constraint("Tangent", 0, 2, 1, 2),
    Sketcher.Constraint("Tangent", 1, 1, 2, 1),
    Sketcher.Constraint("Tangent", 2, 2, 3, 2),
    Sketcher.Constraint("Tangent", 3, 1, 4, 1),
    Sketcher.Constraint("Tangent", 4, 2, 5, 2),
    Sketcher.Constraint("Tangent", 5, 1, 6, 1),
    Sketcher.Constraint("Tangent", 6, 2, 7, 2),
    Sketcher.Constraint("Tangent", 7, 1, 0, 1),
    Sketcher.Constraint("Vertical", 0),
    Sketcher.Constraint("Horizontal", 2),
    Sketcher.Constraint("Vertical", 4),
    Sketcher.Constraint("Horizontal", 6),
    Sketcher.Constraint("Equal", 1, 3),
    Sketcher.Constraint("Equal", 3, 5),
    Sketcher.Constraint("Equal", 5, 7),
    Sketcher.Constraint("Symmetric", 1, 3, 5, 3, -1, 1),
    Sketcher.Constraint("Radius", 1, Q("5.1 mm")),
    Sketcher.Constraint("DistanceX", 2, 2, 2, 1, Q("22 mm")),
    Sketcher.Constraint("DistanceY", 0, 2, 0, 1, Q("60 mm")),
])
doc.recompute()

subtractivepipe2 = doc.addObject("PartDesign::SubtractivePipe", "SubtractivePipe001")
body.addObject(subtractivepipe2)
subtractivepipe2.Profile = sketch10
subtractivepipe2.Spine = (sketch11, ["Edge1", "Edge2", "Edge3", "Edge4", "Edge5", "Edge6", "Edge7", "Edge8"])
doc.recompute()

fillet2 = doc.addObject("PartDesign::Fillet", "Fillet001")
body.addObject(fillet2)
fillet2.Base = (subtractivepipe2, edges_at(subtractivepipe2, [
    (0, 9.548, -41.1),
    (0, 9.548, -41.1),
    (19.1, 9.548, 0),
    (0, 9.548, 41.1),
    (-19.1, 9.548, 0),
    (-18.192, 9.548, 40.192),
    (18.192, 9.548, 40.192),
    (-18.192, 9.548, -40.192),
    (18.192, 9.548, -40.192),
    (0, 9.2, -40.752),
    (-17.946, 9.2, -39.946),
    (-18.752, 9.2, 0),
    (-17.946, 9.2, 39.946),
    (0, 9.2, 40.752),
    (17.946, 9.2, 39.946),
    (18.752, 9.2, 0),
    (17.946, 9.2, -39.946),
    (0, 9.2, -40.752),
    (0, 6.198, 35.1),
    (-16.1, 6.198, 0),
    (0, 6.198, -35.1),
    (0, 6.198, -35.1),
    (16.1, 6.198, 0),
    (15.752, 5.85, 0),
    (0, 5.85, -34.752),
    (14.36, 5.85, -33.36),
    (14.606, 6.198, -33.606),
    (0, 5.85, -34.752),
    (-14.36, 5.85, -33.36),
    (-14.606, 6.198, -33.606),
    (-15.752, 5.85, 0),
    (-14.36, 5.85, 33.36),
    (-14.606, 6.198, 33.606),
    (0, 5.85, 34.752),
    (14.36, 5.85, 33.36),
    (14.606, 6.198, 33.606),
]))
fillet2.Radius = 0.75

# Sketch on XZ plane
sketch12 = doc.addObject("Sketcher::SketchObject", "Sketch011")
body.addObject(sketch12)
sketch12.AttachmentSupport = (doc.XZ_Plane, [""])
sketch12.MapMode = "FlatFace"
sketch12.addGeometry([
    Part.Circle(App.Vector(-16, 38, 0), App.Vector(0, 0, 1), 3.085),
    Part.Circle(App.Vector(16, 38, 0), App.Vector(0, 0, 1), 3.085),
    Part.Circle(App.Vector(16, -38, 0), App.Vector(0, 0, 1), 3.085),
    Part.Circle(App.Vector(-16, -38, 0), App.Vector(0, 0, 1), 3.085),
], False)
sketch12.addConstraint([
    Sketcher.Constraint("Equal", 0, 1),
    Sketcher.Constraint("Equal", 1, 2),
    Sketcher.Constraint("Equal", 2, 3),
    Sketcher.Constraint("Symmetric", 0, 3, 2, 3, -1, 1),
    Sketcher.Constraint("Symmetric", 1, 3, 3, 3, -1, 1),
    Sketcher.Constraint("Symmetric", 0, 3, 1, 3, -2),
    Sketcher.Constraint("Diameter", 0, Q("6.17 mm")),
    Sketcher.Constraint("DistanceX", 0, 3, -1, 1, Q("16 mm")),
    Sketcher.Constraint("DistanceY", -1, 1, 0, 3, Q("38 mm")),
])
pocket6 = doc.addObject("PartDesign::Pocket", "Pocket005")
body.addObject(pocket6)
pocket6.Profile = sketch12
pocket6.Length = 8.2
doc.recompute()

chamfer = doc.addObject("PartDesign::Chamfer", "Chamfer")
body.addObject(chamfer)
chamfer.Base = (pocket6, edges_at(pocket6, [
    (21, 0, 0),
    (19.536, 0, 41.536),
    (0, 0, 43),
    (-19.536, 0, 41.536),
    (-21, 0, 0),
    (-19.536, 0, -41.536),
    (0, 0, -43),
    (19.536, 0, -41.536),
]))
chamfer.Size = 1

doc.recompute()
